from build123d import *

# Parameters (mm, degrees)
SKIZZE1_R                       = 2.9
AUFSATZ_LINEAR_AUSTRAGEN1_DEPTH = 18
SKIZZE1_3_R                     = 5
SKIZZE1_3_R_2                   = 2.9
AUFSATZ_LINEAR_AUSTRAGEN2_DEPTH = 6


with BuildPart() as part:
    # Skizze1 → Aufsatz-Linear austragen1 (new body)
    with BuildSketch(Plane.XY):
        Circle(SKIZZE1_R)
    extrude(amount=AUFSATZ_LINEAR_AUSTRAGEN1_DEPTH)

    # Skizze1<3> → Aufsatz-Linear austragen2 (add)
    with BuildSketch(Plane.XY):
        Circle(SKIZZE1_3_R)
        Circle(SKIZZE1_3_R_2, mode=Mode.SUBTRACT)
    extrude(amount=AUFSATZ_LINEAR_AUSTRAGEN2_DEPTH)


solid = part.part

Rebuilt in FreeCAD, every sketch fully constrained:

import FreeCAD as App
import Part
import Sketcher
Q = App.Units.Quantity

doc = App.newDocument("Part")
body = doc.addObject("PartDesign::Body", "Body")

sketch1 = doc.addObject("Sketcher::SketchObject", "Sketch")
body.addObject(sketch1)
sketch1.AttachmentSupport = (doc.XY_Plane, [""])
sketch1.MapMode = "FlatFace"
sketch1.addGeometry(Part.Circle(App.Vector(0, 0, 0), App.Vector(0, 0, 1), 2.9), False)
sketch1.addConstraint(Sketcher.Constraint("Coincident", 0, 3, -1, 1))
sketch1.addConstraint(Sketcher.Constraint("Diameter", 0, Q("5.8 mm")))
pad1 = doc.addObject("PartDesign::Pad", "Pad")
body.addObject(pad1)
pad1.Profile = sketch1
pad1.Length = 18

sketch2 = doc.addObject("Sketcher::SketchObject", "Sketch001")
body.addObject(sketch2)
sketch2.AttachmentSupport = (doc.XY_Plane, [""])
sketch2.MapMode = "FlatFace"
sketch2.addGeometry(Part.Circle(App.Vector(0, 0, 0), App.Vector(0, 0, 1), 5), False)
sketch2.addGeometry(Part.Circle(App.Vector(0, 0, 0), App.Vector(0, 0, 1), 2.9), False)
sketch2.addConstraint(Sketcher.Constraint("Coincident", 0, 3, -1, 1))
sketch2.addConstraint(Sketcher.Constraint("Coincident", 1, 3, -1, 1))
sketch2.addConstraint(Sketcher.Constraint("Diameter", 0, Q("10 mm")))
sketch2.addConstraint(Sketcher.Constraint("Diameter", 1, Q("5.8 mm")))
pad2 = doc.addObject("PartDesign::Pad", "Pad001")
body.addObject(pad2)
pad2.Profile = sketch2
pad2.Length = 6

doc.recompute()
